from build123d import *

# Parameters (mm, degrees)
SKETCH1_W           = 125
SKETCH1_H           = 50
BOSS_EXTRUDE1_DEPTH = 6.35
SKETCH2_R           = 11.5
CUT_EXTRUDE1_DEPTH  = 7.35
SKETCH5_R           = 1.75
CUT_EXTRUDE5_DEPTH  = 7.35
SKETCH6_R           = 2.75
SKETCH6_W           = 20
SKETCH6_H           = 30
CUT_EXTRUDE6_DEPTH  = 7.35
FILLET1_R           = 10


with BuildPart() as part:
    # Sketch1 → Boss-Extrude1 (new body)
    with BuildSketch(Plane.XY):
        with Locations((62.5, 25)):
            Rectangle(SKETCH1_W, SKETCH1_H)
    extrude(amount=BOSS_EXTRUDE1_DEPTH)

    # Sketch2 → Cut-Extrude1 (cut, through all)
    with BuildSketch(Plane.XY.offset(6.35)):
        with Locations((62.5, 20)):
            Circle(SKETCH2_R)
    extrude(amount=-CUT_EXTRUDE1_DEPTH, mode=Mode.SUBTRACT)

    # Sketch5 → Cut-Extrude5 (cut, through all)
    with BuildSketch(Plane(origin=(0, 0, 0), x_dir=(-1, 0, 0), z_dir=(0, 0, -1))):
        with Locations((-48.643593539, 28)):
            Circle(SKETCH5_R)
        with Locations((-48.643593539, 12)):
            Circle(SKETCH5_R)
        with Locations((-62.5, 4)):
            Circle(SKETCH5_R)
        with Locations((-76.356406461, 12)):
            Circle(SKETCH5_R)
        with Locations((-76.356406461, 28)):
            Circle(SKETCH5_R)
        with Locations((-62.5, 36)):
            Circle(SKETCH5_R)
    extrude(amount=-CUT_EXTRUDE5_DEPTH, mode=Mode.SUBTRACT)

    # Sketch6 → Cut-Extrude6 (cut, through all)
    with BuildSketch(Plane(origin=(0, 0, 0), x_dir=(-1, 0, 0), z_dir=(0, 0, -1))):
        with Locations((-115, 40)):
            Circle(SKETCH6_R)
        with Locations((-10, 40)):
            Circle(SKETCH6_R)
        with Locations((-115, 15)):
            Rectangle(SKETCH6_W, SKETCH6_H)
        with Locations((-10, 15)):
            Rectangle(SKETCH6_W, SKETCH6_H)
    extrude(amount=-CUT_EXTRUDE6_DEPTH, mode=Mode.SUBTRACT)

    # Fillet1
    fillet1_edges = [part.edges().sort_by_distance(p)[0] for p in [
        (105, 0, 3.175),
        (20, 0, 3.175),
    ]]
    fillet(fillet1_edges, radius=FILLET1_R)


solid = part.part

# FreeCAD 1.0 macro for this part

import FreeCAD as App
import Part
import Sketcher
from FreeCAD import Vector


def edges_at(feature, points):
    """Names of the edges that pass closest to the given points."""
    edges = feature.Shape.Edges
    near = lambda p: min(range(len(edges)), key=lambda i: edges[i].distToShape(Part.Vertex(*p))[0])
    return sorted({f"Edge{near(p) + 1}" for p in points})

doc = App.newDocument("Part")
body = doc.addObject("PartDesign::Body", "Body")

sketch1 = doc.addObject("Sketcher::SketchObject", "Sketch")
body.addObject(sketch1)
sketch1.AttachmentSupport = (doc.XY_Plane, [""])
sketch1.MapMode = "FlatFace"
sketch1.addGeometry(Part.LineSegment(Vector(0, 50, 0), Vector(0, 0, 0)), False)
sketch1.addGeometry(Part.LineSegment(Vector(0, 0, 0), Vector(125, 0, 0)), False)
sketch1.addGeometry(Part.LineSegment(Vector(125, 0, 0), Vector(125, 50, 0)), False)
sketch1.addGeometry(Part.LineSegment(Vector(125, 50, 0), Vector(0, 50, 0)), False)
sketch1.addConstraint(Sketcher.Constraint("Coincident", 0, 2, 1, 1))
sketch1.addConstraint(Sketcher.Constraint("Coincident", 1, 2, 2, 1))
sketch1.addConstraint(Sketcher.Constraint("Coincident", 2, 2, 3, 1))
sketch1.addConstraint(Sketcher.Constraint("Coincident", 3, 2, 0, 1))
sketch1.addConstraint(Sketcher.Constraint("Vertical", 0))
sketch1.addConstraint(Sketcher.Constraint("Horizontal", 1))
sketch1.addConstraint(Sketcher.Constraint("Vertical", 2))
sketch1.addConstraint(Sketcher.Constraint("Horizontal", 3))
sketch1.addConstraint(Sketcher.Constraint("Coincident", 0, 2, -1, 1))
sketch1.addConstraint(Sketcher.Constraint("DistanceX", 1, 1, 1, 2, 125.0))
sketch1.addConstraint(Sketcher.Constraint("DistanceY", 0, 2, 0, 1, 50.0))
pad1 = doc.addObject("PartDesign::Pad", "Pad")
body.addObject(pad1)
pad1.Profile = sketch1
pad1.Length = 6.35

sketch2 = doc.addObject("Sketcher::SketchObject", "Sketch001")
body.addObject(sketch2)
sketch2.AttachmentSupport = (doc.XY_Plane, [""])
sketch2.MapMode = "FlatFace"
sketch2.AttachmentOffset = App.Placement(Vector(0, 0, 6.35), App.Rotation())
sketch2.addGeometry(Part.Circle(Vector(62, 20, 0), Vector(0, 0, 1), 12), False)
sketch2.addConstraint(Sketcher.Constraint("Diameter", 0, 23.0))
sketch2.addConstraint(Sketcher.Constraint("DistanceY", -1, 1, 0, 3, 20.0))
sketch2.addConstraint(Sketcher.Constraint("DistanceX", -1, 1, 0, 3, 62.5))
pocket1 = doc.addObject("PartDesign::Pocket", "Pocket")
body.addObject(pocket1)
pocket1.Profile = sketch2
pocket1.Type = "ThroughAll"

sketch3 = doc.addObject("Sketcher::SketchObject", "Sketch002")
body.addObject(sketch3)
sketch3.AttachmentSupport = (doc.XY_Plane, [""])
sketch3.MapMode = "FlatFace"
sketch3.addGeometry(Part.Circle(Vector(48.6, 28, 0), Vector(0, 0, 1), 1.8), False)
sketch3.addGeometry(Part.Circle(Vector(48.6, 12, 0), Vector(0, 0, 1), 1.8), False)
sketch3.addGeometry(Part.Circle(Vector(62.5, 4, 0), Vector(0, 0, 1), 1.8), False)
sketch3.addGeometry(Part.Circle(Vector(76.4, 12, 0), Vector(0, 0, 1), 1.8), False)
sketch3.addGeometry(Part.Circle(Vector(76.4, 28, 0), Vector(0, 0, 1), 1.8), False)
sketch3.addGeometry(Part.Circle(Vector(62.5, 36, 0), Vector(0, 0, 1), 1.8), False)
sketch3.addConstraint(Sketcher.Constraint("Equal", 0, 1))
sketch3.addConstraint(Sketcher.Constraint("Equal", 1, 2))
sketch3.addConstraint(Sketcher.Constraint("Equal", 2, 3))
sketch3.addConstraint(Sketcher.Constraint("Equal", 3, 4))
sketch3.addConstraint(Sketcher.Constraint("Equal", 4, 5))
sketch3.addConstraint(Sketcher.Constraint("Horizontal", 1, 3, 3, 3))
sketch3.addConstraint(Sketcher.Constraint("Horizontal", 0, 3, 4, 3))
sketch3.addConstraint(Sketcher.Constraint("Vertical", 0, 3, 1, 3))
sketch3.addConstraint(Sketcher.Constraint("Vertical", 3, 3, 4, 3))
sketch3.addConstraint(Sketcher.Constraint("Vertical", 2, 3, 5, 3))
sketch3.addConstraint(Sketcher.Constraint("Diameter", 0, 3.5))
sketch3.addConstraint(Sketcher.Constraint("DistanceY", -1, 1, 0, 3, 28.0))
sketch3.addConstraint(Sketcher.Constraint("DistanceY", -1, 1, 1, 3, 12.0))
sketch3.addConstraint(Sketcher.Constraint("DistanceY", -1, 1, 2, 3, 4.0))
sketch3.addConstraint(Sketcher.Constraint("DistanceY", -1, 1, 5, 3, 36.0))
sketch3.addConstraint(Sketcher.Constraint("DistanceX", -1, 1, 2, 3, 62.5))
sketch3.addConstraint(Sketcher.Constraint("DistanceX", -1, 1, 0, 3, 48.643594))
sketch3.addConstraint(Sketcher.Constraint("DistanceX", -1, 1, 3, 3, 76.356406))
pocket2 = doc.addObject("PartDesign::Pocket", "Pocket001")
body.addObject(pocket2)
pocket2.Profile = sketch3
pocket2.Type = "ThroughAll"
pocket2.Reversed = True

sketch4 = doc.addObject("Sketcher::SketchObject", "Sketch003")
body.addObject(sketch4)
sketch4.AttachmentSupport = (doc.XY_Plane, [""])
sketch4.MapMode = "FlatFace"
sketch4.addGeometry(Part.Circle(Vector(115, 40, 0), Vector(0, 0, 1), 2.8), False)
sketch4.addGeometry(Part.Circle(Vector(10, 40, 0), Vector(0, 0, 1), 2.8), False)
sketch4.addGeometry(Part.LineSegment(Vector(125, 30, 0), Vector(125, 0, 0)), False)
sketch4.addGeometry(Part.LineSegment(Vector(125, 0, 0), Vector(105, 0, 0)), False)
sketch4.addGeometry(Part.LineSegment(Vector(105, 0, 0), Vector(105, 30, 0)), False)
sketch4.addGeometry(Part.LineSegment(Vector(105, 30, 0), Vector(125, 30, 0)), False)
sketch4.addGeometry(Part.LineSegment(Vector(20, 30, 0), Vector(20, 0, 0)), False)
sketch4.addGeometry(Part.LineSegment(Vector(20, 0, 0), Vector(0, 0, 0)), False)
sketch4.addGeometry(Part.LineSegment(Vector(0, 0, 0), Vector(0, 30, 0)), False)
sketch4.addGeometry(Part.LineSegment(Vector(0, 30, 0), Vector(20, 30, 0)), False)
sketch4.addConstraint(Sketcher.Constraint("Coincident", 2, 2, 3, 1))
sketch4.addConstraint(Sketcher.Constraint("Coincident", 3, 2, 4, 1))
sketch4.addConstraint(Sketcher.Constraint("Coincident", 4, 2, 5, 1))
sketch4.addConstraint(Sketcher.Constraint("Coincident", 5, 2, 2, 1))
sketch4.addConstraint(Sketcher.Constraint("Coincident", 6, 2, 7, 1))
sketch4.addConstraint(Sketcher.Constraint("Coincident", 7, 2, 8, 1))
sketch4.addConstraint(Sketcher.Constraint("Coincident", 8, 2, 9, 1))
sketch4.addConstraint(Sketcher.Constraint("Coincident", 9, 2, 6, 1))
sketch4.addConstraint(Sketcher.Constraint("Vertical", 2))
sketch4.addConstraint(Sketcher.Constraint("Horizontal", 3))
sketch4.addConstraint(Sketcher.Constraint("Vertical", 4))
sketch4.addConstraint(Sketcher.Constraint("Horizontal", 5))
sketch4.addConstraint(Sketcher.Constraint("Vertical", 6))
sketch4.addConstraint(Sketcher.Constraint("Horizontal", 7))
sketch4.addConstraint(Sketcher.Constraint("Vertical", 8))
sketch4.addConstraint(Sketcher.Constraint("Horizontal", 9))
sketch4.addConstraint(Sketcher.Constraint("Coincident", 7, 2, -1, 1))
sketch4.addConstraint(Sketcher.Constraint("Equal", 0, 1))
sketch4.addConstraint(Sketcher.Constraint("PointOnObject", 2, 2, -1))
sketch4.addConstraint(Sketcher.Constraint("Horizontal", 0, 3, 1, 3))
sketch4.addConstraint(Sketcher.Constraint("Horizontal", 5, 2, 8, 2))
sketch4.addConstraint(Sketcher.Constraint("Equal", 5, 7))
sketch4.addConstraint(Sketcher.Constraint("Diameter", 0, 5.5))
sketch4.addConstraint(Sketcher.Constraint("DistanceX", 3, 2, 3, 1, 20.0))
sketch4.addConstraint(Sketcher.Constraint("DistanceY", 2, 2, 2, 1, 30.0))
sketch4.addConstraint(Sketcher.Constraint("DistanceX", -1, 1, 0, 3, 115.0))
sketch4.addConstraint(Sketcher.Constraint("DistanceY", -1, 1, 0, 3, 40.0))
sketch4.addConstraint(Sketcher.Constraint("DistanceX", -1, 1, 1, 3, 10.0))
sketch4.addConstraint(Sketcher.Constraint("DistanceX", -1, 1, 2, 2, 125.0))
pocket3 = doc.addObject("PartDesign::Pocket", "Pocket002")
body.addObject(pocket3)
pocket3.Profile = sketch4
pocket3.Type = "ThroughAll"
pocket3.Reversed = True
doc.recompute()

fillet = doc.addObject("PartDesign::Fillet", "Fillet")
body.addObject(fillet)
fillet.Base = (pocket3, edges_at(pocket3, [(105, 0, 3.175), (20, 0, 3.175)]))
fillet.Radius = 10

doc.recompute()
